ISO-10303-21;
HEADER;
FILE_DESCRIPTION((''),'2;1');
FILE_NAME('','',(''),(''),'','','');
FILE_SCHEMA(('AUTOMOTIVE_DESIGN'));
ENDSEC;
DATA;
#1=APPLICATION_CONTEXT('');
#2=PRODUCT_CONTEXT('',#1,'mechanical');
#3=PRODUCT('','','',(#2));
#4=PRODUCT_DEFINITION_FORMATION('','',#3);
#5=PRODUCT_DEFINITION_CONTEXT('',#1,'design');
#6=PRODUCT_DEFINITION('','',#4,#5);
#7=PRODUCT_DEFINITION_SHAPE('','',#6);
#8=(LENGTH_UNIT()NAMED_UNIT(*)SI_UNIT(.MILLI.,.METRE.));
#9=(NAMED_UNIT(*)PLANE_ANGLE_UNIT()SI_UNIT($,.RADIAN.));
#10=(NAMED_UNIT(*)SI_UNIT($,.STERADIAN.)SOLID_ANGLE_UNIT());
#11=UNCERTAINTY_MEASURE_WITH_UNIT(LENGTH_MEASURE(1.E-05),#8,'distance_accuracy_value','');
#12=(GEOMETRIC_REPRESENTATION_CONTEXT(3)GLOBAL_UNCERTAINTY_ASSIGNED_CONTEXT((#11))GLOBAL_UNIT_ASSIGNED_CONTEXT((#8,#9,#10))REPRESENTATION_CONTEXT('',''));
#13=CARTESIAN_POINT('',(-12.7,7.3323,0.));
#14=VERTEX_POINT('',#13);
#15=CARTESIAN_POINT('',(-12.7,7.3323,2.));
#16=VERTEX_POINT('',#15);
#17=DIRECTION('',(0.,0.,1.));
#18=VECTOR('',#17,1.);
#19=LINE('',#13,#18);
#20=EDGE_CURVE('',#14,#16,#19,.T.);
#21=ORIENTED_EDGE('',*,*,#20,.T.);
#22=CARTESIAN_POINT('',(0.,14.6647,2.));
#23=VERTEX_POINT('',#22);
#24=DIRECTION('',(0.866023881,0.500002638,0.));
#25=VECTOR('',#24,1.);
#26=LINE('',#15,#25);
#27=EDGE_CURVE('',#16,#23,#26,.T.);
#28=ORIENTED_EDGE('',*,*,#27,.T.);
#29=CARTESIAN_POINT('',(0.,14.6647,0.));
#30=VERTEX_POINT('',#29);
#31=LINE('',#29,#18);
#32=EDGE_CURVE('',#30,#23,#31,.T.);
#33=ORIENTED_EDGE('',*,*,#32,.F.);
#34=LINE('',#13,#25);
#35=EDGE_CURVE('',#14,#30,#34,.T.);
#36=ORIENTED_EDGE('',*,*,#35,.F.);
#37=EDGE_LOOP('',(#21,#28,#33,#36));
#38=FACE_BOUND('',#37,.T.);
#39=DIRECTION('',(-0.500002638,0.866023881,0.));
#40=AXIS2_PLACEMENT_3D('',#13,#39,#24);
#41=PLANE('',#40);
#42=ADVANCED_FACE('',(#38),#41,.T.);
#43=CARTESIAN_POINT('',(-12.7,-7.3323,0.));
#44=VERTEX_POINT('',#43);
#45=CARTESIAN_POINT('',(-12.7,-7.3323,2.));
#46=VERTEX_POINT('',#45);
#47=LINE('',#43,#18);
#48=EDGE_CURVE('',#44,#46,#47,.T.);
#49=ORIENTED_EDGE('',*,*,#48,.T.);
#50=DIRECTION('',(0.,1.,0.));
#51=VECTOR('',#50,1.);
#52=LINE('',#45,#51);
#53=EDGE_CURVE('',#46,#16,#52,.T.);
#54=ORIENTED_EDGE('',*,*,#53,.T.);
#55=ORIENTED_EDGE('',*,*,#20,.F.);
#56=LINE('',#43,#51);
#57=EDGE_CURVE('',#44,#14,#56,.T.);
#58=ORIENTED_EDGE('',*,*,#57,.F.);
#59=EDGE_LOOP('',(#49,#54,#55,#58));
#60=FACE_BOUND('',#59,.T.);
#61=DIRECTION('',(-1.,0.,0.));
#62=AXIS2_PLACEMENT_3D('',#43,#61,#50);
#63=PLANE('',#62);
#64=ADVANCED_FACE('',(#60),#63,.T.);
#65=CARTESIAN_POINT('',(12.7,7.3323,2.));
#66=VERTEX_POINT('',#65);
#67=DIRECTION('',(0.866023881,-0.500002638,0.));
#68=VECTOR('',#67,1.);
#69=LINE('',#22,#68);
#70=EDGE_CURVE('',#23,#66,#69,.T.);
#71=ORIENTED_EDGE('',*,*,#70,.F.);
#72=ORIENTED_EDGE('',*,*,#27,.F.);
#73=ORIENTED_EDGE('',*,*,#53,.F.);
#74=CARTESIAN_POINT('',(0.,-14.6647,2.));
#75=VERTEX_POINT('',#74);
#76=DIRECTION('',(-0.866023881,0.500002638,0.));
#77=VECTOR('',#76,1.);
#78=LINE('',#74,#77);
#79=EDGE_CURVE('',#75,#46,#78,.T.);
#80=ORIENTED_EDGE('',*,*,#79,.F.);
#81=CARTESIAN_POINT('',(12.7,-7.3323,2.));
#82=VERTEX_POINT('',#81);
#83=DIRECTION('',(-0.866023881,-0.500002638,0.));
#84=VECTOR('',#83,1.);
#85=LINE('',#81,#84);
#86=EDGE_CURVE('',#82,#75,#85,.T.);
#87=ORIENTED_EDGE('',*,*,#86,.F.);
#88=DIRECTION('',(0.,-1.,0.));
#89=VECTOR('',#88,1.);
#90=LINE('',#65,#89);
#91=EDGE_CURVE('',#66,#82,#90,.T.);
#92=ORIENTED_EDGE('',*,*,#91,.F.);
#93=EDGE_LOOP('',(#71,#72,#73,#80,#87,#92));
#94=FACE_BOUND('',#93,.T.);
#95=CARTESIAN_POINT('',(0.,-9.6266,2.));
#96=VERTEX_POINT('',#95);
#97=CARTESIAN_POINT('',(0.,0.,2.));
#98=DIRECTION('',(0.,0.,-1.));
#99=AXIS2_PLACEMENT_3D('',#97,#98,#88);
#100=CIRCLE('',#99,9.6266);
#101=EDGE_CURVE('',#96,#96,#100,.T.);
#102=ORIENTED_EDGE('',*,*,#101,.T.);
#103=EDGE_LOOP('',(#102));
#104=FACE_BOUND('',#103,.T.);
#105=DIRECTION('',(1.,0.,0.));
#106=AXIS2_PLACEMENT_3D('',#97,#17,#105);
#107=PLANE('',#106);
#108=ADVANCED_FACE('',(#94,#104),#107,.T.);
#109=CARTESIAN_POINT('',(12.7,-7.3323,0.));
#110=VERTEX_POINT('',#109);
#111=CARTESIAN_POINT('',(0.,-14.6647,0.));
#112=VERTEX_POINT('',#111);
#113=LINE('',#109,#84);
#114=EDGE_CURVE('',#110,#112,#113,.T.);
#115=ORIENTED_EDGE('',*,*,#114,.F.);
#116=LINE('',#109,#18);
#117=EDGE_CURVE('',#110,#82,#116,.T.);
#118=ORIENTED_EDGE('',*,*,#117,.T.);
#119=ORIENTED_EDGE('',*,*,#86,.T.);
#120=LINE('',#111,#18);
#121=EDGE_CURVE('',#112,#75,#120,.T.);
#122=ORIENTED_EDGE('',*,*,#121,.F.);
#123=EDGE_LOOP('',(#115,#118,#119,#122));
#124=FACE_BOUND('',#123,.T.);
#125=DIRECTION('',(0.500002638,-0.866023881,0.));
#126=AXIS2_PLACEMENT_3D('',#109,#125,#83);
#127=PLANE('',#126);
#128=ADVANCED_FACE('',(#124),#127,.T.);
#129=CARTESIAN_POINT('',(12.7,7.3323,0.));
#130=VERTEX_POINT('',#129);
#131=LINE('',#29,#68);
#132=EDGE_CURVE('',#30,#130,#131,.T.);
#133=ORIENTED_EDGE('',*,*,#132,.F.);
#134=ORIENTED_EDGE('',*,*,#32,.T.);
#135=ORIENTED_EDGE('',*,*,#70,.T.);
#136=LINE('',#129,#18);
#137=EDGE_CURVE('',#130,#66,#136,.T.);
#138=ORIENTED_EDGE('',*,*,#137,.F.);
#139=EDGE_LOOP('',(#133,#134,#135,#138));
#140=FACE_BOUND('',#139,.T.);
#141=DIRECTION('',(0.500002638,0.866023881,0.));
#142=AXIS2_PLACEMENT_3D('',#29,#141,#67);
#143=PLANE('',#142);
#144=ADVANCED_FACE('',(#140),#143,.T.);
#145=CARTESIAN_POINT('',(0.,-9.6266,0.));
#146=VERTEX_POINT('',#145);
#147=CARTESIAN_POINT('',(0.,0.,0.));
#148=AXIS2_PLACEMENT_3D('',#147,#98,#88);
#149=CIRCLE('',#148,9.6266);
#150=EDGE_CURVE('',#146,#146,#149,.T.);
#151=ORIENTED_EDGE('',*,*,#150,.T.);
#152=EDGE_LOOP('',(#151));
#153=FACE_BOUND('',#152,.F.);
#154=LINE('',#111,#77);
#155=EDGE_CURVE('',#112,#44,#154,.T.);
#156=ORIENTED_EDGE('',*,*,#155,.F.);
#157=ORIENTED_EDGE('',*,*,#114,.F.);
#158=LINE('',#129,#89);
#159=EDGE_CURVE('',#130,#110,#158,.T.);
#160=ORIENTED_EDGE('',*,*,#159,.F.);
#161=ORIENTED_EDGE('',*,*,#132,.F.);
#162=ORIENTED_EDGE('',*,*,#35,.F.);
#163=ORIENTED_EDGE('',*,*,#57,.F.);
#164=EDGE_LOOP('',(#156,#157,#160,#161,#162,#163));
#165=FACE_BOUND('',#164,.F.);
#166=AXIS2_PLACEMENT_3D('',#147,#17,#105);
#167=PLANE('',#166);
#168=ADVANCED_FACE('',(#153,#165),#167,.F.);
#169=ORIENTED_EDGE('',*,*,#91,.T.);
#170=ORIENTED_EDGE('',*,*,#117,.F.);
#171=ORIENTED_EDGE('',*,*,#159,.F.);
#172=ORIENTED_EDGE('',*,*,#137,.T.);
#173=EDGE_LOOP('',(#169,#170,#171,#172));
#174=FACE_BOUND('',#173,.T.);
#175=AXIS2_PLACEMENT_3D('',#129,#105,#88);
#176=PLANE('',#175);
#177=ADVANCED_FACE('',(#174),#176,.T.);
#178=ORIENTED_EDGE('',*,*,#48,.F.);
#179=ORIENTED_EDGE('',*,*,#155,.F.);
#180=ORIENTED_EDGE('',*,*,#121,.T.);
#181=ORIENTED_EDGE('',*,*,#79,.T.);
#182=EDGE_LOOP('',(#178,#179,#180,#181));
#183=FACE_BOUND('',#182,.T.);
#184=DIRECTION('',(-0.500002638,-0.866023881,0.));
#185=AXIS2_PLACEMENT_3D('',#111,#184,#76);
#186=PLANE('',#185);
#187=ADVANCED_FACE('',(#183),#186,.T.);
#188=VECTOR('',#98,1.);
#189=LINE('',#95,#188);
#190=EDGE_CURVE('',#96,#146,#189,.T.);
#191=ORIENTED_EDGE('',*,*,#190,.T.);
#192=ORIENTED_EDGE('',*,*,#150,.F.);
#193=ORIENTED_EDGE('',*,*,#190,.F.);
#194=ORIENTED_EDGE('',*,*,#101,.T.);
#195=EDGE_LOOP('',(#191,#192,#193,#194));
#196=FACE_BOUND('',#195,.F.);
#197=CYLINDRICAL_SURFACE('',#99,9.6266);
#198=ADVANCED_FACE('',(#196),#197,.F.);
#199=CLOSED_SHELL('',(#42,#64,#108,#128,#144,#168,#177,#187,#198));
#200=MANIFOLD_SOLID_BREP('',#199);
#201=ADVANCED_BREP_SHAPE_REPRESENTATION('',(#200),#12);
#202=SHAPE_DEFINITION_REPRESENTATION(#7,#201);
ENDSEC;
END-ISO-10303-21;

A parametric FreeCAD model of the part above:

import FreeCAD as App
import Part
import Sketcher

V = App.Vector
Q = App.Units.Quantity

doc = App.newDocument("Part")
body = doc.addObject("PartDesign::Body", "Body")

sketch1 = doc.addObject("Sketcher::SketchObject", "Sketch")
body.addObject(sketch1)
sketch1.AttachmentSupport = (doc.XY_Plane, [""])
sketch1.MapMode = "FlatFace"
sketch1.addGeometry(Part.LineSegment(V(12.7, 7.3323, 0), V(0, 14.6647, 0)), False)
sketch1.addGeometry(Part.LineSegment(V(0, 14.6647, 0), V(-12.7, 7.3323, 0)), False)
sketch1.addGeometry(Part.LineSegment(V(-12.7, 7.3323, 0), V(-12.7, -7.3323, 0)), False)
sketch1.addGeometry(Part.LineSegment(V(-12.7, -7.3323, 0), V(0, -14.6647, 0)), False)
sketch1.addGeometry(Part.LineSegment(V(0, -14.6647, 0), V(12.7, -7.3323, 0)), False)
sketch1.addGeometry(Part.LineSegment(V(12.7, -7.3323, 0), V(12.7, 7.3323, 0)), False)
sketch1.addConstraint(Sketcher.Constraint("Coincident", 0, 2, 1, 1))
sketch1.addConstraint(Sketcher.Constraint("Coincident", 1, 2, 2, 1))
sketch1.addConstraint(Sketcher.Constraint("Coincident", 2, 2, 3, 1))
sketch1.addConstraint(Sketcher.Constraint("Coincident", 3, 2, 4, 1))
sketch1.addConstraint(Sketcher.Constraint("Coincident", 4, 2, 5, 1))
sketch1.addConstraint(Sketcher.Constraint("Coincident", 5, 2, 0, 1))
sketch1.addConstraint(Sketcher.Constraint("Vertical", 2))
sketch1.addConstraint(Sketcher.Constraint("Vertical", 5))
sketch1.addConstraint(Sketcher.Constraint("Symmetric", 0, 2, 3, 2, -1, 1))
sketch1.addConstraint(Sketcher.Constraint("Symmetric", 1, 2, 4, 2, -1, 1))
sketch1.addConstraint(Sketcher.Constraint("PointOnObject", 0, 2, -2))
sketch1.addConstraint(Sketcher.Constraint("Parallel", 0, 3))
sketch1.addConstraint(Sketcher.Constraint("Horizontal", 2, 2, 4, 2))
sketch1.addConstraint(Sketcher.Constraint("DistanceX", 2, 2, 4, 2, Q("25.4 mm")))
sketch1.addConstraint(Sketcher.Constraint("Angle", 0, Q("149.9998 deg")))
sketch1.addConstraint(Sketcher.Constraint("DistanceY", 2, 2, 2, 1, Q("14.6646 mm")))
pad1 = doc.addObject("PartDesign::Pad", "Pad")
body.addObject(pad1)
pad1.Profile = sketch1
pad1.Length = 2

sketch2 = doc.addObject("Sketcher::SketchObject", "Sketch001")
body.addObject(sketch2)
sketch2.AttachmentSupport = (doc.XY_Plane, [""])
sketch2.MapMode = "FlatFace"
sketch2.AttachmentOffset = App.Placement(V(0, 0, 2), App.Rotation())
sketch2.addGeometry(Part.Circle(V(0, 0, 0), V(0, 0, 1), 9.6266), False)
sketch2.addConstraint(Sketcher.Constraint("Coincident", 0, 3, -1, 1))
sketch2.addConstraint(Sketcher.Constraint("Diameter", 0, Q("19.2532 mm")))
doc.recompute()
hole = doc.addObject("PartDesign::Hole", "Hole")
body.addObject(hole)
hole.Profile = sketch2
hole.ThreadType = "None"
hole.Diameter = 19.2532
hole.DepthType = "ThroughAll"

doc.recompute()
